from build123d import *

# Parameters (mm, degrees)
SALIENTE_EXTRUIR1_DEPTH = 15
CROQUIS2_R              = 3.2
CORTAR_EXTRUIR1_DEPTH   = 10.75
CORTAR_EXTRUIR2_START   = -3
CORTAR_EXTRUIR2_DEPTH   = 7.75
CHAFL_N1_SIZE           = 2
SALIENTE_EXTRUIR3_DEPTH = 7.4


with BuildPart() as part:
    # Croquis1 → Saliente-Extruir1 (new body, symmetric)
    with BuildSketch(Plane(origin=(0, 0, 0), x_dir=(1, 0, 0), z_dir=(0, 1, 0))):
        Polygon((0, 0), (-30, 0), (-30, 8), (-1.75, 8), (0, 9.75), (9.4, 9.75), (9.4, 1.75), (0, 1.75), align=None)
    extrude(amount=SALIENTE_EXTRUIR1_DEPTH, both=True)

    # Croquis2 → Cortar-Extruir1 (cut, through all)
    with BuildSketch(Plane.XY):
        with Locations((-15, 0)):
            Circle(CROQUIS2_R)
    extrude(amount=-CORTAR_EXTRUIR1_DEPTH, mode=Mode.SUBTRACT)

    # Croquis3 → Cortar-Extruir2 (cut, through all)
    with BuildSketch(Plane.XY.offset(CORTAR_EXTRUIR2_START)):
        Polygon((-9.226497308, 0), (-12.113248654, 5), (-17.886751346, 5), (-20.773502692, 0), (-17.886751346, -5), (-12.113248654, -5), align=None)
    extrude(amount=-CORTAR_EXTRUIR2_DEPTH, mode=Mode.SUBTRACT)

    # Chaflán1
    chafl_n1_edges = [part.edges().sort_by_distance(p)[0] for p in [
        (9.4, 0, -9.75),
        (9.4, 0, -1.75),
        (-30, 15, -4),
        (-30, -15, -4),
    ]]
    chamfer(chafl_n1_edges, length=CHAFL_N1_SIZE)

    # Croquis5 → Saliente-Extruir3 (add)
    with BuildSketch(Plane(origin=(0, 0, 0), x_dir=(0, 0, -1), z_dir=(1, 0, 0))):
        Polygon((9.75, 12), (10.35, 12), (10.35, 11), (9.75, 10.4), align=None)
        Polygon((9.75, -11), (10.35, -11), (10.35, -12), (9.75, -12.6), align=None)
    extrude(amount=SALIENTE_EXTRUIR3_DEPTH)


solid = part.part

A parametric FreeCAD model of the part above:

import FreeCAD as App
import Part
import Sketcher
from FreeCAD import Vector
Q = App.Units.Quantity


def edges_at(feature, points):
    """Names of the edges that pass closest to the given points."""
    edges = feature.Shape.Edges
    near = lambda p: min(range(len(edges)), key=lambda i: edges[i].distToShape(Part.Vertex(*p))[0])
    return sorted({f"Edge{near(p) + 1}" for p in points})


def add_polygon(sketch, points):
    """Adds a closed chain of lines whose ends are joined by coincident constraints."""
    first, n = sketch.GeometryCount, len(points)
    for a, b in zip(points, points[1:] + points[:1]):
        sketch.addGeometry(Part.LineSegment(App.Vector(*a, 0), App.Vector(*b, 0)), False)
    for i in range(n):
        sketch.addConstraint(Sketcher.Constraint("Coincident", first + i, 2, first + (i + 1) % n, 1))

doc = App.newDocument("Part")
body = doc.addObject("PartDesign::Body", "Body")

# Sketch on XZ plane
sketch1 = body.newObject("Sketcher::SketchObject", "Sketch")
sketch1.AttachmentSupport = (doc.getObject("XZ_Plane"), [""])
sketch1.MapMode = "FlatFace"
add_polygon(sketch1, [(-30, 0), (0, 0), (0, -1.75), (9.4, -1.75), (9.4, -9.75), (0, -9.75), (-1.75, -8), (-30, -8)])  # lines 0-7
sketch1.addConstraint(Sketcher.Constraint("Horizontal", 0))
sketch1.addConstraint(Sketcher.Constraint("Vertical", 1))
sketch1.addConstraint(Sketcher.Constraint("Horizontal", 2))
sketch1.addConstraint(Sketcher.Constraint("Vertical", 3))
sketch1.addConstraint(Sketcher.Constraint("Horizontal", 4))
sketch1.addConstraint(Sketcher.Constraint("Horizontal", 6))
sketch1.addConstraint(Sketcher.Constraint("Vertical", 7))
sketch1.addConstraint(Sketcher.Constraint("Coincident", 0, 2, -1, 1))
sketch1.addConstraint(Sketcher.Constraint("PointOnObject", 4, 2, -2))
sketch1.addConstraint(Sketcher.Constraint("Equal", 3, 7))
sketch1.addConstraint(Sketcher.Constraint("DistanceX", 0, 1, 0, 2, 30.0))
sketch1.addConstraint(Sketcher.Constraint("DistanceY", 3, 2, 3, 1, 8.0))
sketch1.addConstraint(Sketcher.Constraint("Angle", 5, Q("135 deg")))
sketch1.addConstraint(Sketcher.Constraint("DistanceX", 2, 1, 2, 2, 9.4))
sketch1.addConstraint(Sketcher.Constraint("DistanceX", 6, 2, 6, 1, 28.25))
pad1 = body.newObject("PartDesign::Pad", "Pad")
pad1.Profile = sketch1
pad1.Length = 30
pad1.Midplane = True

# Sketch on XY plane
sketch2 = body.newObject("Sketcher::SketchObject", "Sketch001")
sketch2.AttachmentSupport = (doc.getObject("XY_Plane"), [""])
sketch2.MapMode = "FlatFace"
sketch2.addGeometry(Part.Circle(Vector(-15, 0, 0), Vector(0, 0, 1), 3.2), False)
sketch2.addConstraint(Sketcher.Constraint("PointOnObject", 0, 3, -1))
sketch2.addConstraint(Sketcher.Constraint("Diameter", 0, 6.4))
sketch2.addConstraint(Sketcher.Constraint("DistanceX", 0, 3, -1, 1, 15.0))
pocket1 = body.newObject("PartDesign::Pocket", "Pocket")
pocket1.Profile = sketch2
pocket1.Type = "ThroughAll"

# Sketch on XY plane
sketch3 = body.newObject("Sketcher::SketchObject", "Sketch002")
sketch3.AttachmentSupport = (doc.getObject("XY_Plane"), [""])
sketch3.MapMode = "FlatFace"
sketch3.AttachmentOffset = App.Placement(Vector(0, 0, -3), App.Rotation())
add_polygon(sketch3, [(-9.226497, 0), (-12.113249, 5), (-17.886751, 5), (-20.773503, 0), (-17.886751, -5), (-12.113249, -5)])  # lines 0-5
sketch3.addConstraint(Sketcher.Constraint("Horizontal", 1))
sketch3.addConstraint(Sketcher.Constraint("Horizontal", 4))
sketch3.addConstraint(Sketcher.Constraint("Symmetric", 1, 2, 3, 2, -1))
sketch3.addConstraint(Sketcher.Constraint("PointOnObject", 2, 2, -1))
sketch3.addConstraint(Sketcher.Constraint("PointOnObject", 5, 2, -1))
sketch3.addConstraint(Sketcher.Constraint("Parallel", 0, 3))
sketch3.addConstraint(Sketcher.Constraint("Parallel", 2, 5))
sketch3.addConstraint(Sketcher.Constraint("Angle", 0, Q("120 deg")))
sketch3.addConstraint(Sketcher.Constraint("DistanceY", -1, 1, 0, 2, 5.0))
sketch3.addConstraint(Sketcher.Constraint("DistanceX", 1, 2, 1, 1, 5.773503))
sketch3.addConstraint(Sketcher.Constraint("DistanceX", 0, 2, -1, 1, 12.113249))
pocket2 = body.newObject("PartDesign::Pocket", "Pocket001")
pocket2.Profile = sketch3
pocket2.Type = "ThroughAll"
doc.recompute()

chamfer = body.newObject("PartDesign::Chamfer", "Chamfer")
chamfer.Base = (pocket2, edges_at(pocket2, [
    (9.4, 0, -9.75),
    (9.4, 0, -1.75),
    (-30, 15, -4),
    (-30, -15, -4),
]))
chamfer.Size = 2

# Sketch on YZ plane
sketch4 = body.newObject("Sketcher::SketchObject", "Sketch003")
sketch4.AttachmentSupport = (doc.getObject("YZ_Plane"), [""])
sketch4.MapMode = "FlatFace"
add_polygon(sketch4, [(12, -10.35), (12, -9.75), (10.4, -9.75), (11, -10.35)])  # lines 0-3
add_polygon(sketch4, [(-11, -10.35), (-11, -9.75), (-12.6, -9.75), (-12, -10.35)])  # lines 4-7
sketch4.addConstraint(Sketcher.Constraint("Vertical", 0))
sketch4.addConstraint(Sketcher.Constraint("Horizontal", 1))
sketch4.addConstraint(Sketcher.Constraint("Horizontal", 3))
sketch4.addConstraint(Sketcher.Constraint("Vertical", 4))
sketch4.addConstraint(Sketcher.Constraint("Horizontal", 5))
sketch4.addConstraint(Sketcher.Constraint("Horizontal", 7))
sketch4.addConstraint(Sketcher.Constraint("Symmetric", 3, 2, 6, 2, -2))
sketch4.addConstraint(Sketcher.Constraint("Parallel", 2, 6))
sketch4.addConstraint(Sketcher.Constraint("Horizontal", 1, 2, 4, 2))
sketch4.addConstraint(Sketcher.Constraint("Equal", 1, 5))
sketch4.addConstraint(Sketcher.Constraint("DistanceX", 3, 1, 3, 2, 1.0))
sketch4.addConstraint(Sketcher.Constraint("Angle", 2, Q("-45 deg")))
sketch4.addConstraint(Sketcher.Constraint("DistanceX", 1, 2, 1, 1, 1.6))
sketch4.addConstraint(Sketcher.Constraint("DistanceX", -1, 1, 0, 2, 12.0))
sketch4.addConstraint(Sketcher.Constraint("DistanceY", 0, 2, -1, 1, 9.75))
pad2 = body.newObject("PartDesign::Pad", "Pad001")
pad2.Profile = sketch4
pad2.Length = 7.4

doc.recompute()
